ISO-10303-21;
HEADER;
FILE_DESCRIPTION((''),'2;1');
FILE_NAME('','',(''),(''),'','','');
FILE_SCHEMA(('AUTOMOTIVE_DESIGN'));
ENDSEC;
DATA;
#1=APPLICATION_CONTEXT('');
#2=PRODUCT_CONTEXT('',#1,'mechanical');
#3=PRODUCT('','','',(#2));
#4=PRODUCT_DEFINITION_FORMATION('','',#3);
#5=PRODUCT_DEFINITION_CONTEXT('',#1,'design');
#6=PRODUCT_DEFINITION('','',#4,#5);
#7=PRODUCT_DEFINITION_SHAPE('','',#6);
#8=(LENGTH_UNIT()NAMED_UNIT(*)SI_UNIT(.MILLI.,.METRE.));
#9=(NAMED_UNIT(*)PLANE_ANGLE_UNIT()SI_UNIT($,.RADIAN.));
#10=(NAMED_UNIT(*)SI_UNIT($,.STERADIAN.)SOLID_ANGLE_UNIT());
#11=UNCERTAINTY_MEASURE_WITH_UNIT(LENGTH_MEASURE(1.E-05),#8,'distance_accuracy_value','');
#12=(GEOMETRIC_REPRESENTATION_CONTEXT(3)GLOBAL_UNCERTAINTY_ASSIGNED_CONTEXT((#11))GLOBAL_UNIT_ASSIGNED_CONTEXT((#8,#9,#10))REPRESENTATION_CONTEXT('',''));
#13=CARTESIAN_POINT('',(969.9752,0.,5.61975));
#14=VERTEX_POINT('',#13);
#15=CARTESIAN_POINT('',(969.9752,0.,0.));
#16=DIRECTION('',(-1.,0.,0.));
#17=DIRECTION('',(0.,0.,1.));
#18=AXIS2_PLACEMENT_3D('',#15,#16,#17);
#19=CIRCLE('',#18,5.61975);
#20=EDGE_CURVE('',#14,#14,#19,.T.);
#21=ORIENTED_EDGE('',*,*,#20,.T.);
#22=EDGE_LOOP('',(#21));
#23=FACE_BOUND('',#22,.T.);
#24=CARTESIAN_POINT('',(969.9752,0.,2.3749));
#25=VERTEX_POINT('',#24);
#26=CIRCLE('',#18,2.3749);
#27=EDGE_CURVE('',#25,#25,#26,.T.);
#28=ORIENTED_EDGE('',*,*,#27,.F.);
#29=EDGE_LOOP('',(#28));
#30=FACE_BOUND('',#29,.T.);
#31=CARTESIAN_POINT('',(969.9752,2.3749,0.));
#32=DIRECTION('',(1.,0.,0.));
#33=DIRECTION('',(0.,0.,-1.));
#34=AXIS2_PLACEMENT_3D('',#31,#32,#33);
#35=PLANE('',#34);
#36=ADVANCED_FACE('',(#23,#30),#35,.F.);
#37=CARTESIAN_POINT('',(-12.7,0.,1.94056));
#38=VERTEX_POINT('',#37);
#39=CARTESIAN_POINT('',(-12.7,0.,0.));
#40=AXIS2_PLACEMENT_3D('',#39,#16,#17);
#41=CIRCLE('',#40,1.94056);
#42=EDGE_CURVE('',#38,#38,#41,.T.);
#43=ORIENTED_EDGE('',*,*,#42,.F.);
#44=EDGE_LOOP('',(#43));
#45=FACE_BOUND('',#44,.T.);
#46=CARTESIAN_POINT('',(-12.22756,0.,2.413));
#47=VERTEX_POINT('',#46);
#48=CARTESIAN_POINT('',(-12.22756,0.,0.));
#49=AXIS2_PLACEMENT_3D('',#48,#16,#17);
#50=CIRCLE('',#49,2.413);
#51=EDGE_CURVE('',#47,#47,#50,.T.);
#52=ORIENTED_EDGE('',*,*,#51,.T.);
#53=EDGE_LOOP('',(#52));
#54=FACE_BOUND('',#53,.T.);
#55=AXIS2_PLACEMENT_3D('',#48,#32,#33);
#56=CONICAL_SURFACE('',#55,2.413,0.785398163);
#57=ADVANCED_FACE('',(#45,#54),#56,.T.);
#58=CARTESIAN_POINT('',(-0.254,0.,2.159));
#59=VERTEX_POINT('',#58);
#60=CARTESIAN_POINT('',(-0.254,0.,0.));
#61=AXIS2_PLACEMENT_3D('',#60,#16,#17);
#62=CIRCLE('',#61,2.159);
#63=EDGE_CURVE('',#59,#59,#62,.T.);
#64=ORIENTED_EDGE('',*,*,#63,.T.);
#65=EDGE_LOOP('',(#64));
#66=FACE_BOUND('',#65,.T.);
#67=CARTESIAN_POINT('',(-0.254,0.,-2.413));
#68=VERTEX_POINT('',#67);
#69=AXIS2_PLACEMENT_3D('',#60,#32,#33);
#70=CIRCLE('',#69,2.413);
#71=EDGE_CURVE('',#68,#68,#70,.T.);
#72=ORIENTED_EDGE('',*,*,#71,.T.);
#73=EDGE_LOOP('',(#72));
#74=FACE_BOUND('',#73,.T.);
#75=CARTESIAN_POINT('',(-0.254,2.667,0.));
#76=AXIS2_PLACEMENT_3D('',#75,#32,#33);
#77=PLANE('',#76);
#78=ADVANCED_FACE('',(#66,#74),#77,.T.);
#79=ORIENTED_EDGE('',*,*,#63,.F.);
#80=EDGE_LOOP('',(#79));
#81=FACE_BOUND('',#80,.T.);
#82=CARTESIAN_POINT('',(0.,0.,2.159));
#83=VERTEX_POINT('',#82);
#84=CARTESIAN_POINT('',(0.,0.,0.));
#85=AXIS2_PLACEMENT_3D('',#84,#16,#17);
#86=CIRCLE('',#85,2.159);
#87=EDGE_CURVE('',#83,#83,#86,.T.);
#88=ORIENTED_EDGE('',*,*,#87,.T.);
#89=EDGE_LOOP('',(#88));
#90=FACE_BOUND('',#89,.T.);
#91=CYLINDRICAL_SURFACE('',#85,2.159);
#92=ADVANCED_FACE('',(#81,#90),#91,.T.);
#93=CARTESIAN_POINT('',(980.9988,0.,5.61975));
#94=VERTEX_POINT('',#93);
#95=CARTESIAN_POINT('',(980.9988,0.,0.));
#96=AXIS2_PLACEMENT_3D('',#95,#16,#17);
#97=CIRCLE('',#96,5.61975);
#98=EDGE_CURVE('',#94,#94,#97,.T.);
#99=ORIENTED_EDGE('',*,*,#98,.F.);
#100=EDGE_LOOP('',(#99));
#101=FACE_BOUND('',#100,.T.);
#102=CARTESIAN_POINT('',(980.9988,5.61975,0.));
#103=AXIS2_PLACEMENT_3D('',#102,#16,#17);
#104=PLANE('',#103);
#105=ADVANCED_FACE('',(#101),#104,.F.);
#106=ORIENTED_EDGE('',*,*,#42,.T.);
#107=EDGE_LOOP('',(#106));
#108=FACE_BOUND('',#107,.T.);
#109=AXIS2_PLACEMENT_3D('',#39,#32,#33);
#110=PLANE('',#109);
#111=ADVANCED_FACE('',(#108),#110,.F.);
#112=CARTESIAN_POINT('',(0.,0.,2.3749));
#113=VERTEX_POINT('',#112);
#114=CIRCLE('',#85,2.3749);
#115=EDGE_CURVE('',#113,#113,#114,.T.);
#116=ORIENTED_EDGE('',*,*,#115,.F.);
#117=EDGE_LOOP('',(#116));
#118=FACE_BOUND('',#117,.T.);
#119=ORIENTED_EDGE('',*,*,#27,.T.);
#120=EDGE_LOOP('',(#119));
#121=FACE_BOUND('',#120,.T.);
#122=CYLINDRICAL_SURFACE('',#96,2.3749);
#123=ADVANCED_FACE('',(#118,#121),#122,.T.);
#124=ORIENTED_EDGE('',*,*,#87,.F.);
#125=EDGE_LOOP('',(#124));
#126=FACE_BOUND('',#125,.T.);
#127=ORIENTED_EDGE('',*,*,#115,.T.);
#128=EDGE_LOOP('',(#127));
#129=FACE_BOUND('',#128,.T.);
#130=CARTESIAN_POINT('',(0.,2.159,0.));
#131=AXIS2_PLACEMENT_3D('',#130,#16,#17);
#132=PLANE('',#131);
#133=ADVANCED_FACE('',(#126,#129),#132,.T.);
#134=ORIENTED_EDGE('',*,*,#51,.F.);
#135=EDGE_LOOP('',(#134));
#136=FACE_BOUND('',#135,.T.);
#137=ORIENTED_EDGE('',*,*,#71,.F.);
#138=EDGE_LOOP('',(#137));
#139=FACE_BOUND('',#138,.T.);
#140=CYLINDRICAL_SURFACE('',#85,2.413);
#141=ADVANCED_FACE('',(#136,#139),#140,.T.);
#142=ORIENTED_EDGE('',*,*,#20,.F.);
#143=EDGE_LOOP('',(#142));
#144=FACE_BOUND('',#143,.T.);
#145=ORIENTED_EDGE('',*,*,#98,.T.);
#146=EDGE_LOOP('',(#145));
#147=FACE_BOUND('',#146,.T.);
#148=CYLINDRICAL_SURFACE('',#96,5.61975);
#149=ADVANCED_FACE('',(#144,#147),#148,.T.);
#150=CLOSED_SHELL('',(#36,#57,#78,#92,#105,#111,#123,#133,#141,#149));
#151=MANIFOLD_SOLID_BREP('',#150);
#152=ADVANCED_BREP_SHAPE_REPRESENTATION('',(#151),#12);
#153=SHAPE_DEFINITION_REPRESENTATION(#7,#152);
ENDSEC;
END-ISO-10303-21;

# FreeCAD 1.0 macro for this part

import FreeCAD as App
import Part
import Sketcher
Q = App.Units.Quantity


def add_polygon(sketch, points):
    """Adds a closed chain of lines whose ends are joined by coincident constraints."""
    first, n = sketch.GeometryCount, len(points)
    for a, b in zip(points, points[1:] + points[:1]):
        sketch.addGeometry(Part.LineSegment(App.Vector(*a, 0), App.Vector(*b, 0)), False)
    for i in range(n):
        sketch.addConstraint(Sketcher.Constraint("Coincident", first + i, 2, first + (i + 1) % n, 1))

doc = App.newDocument("Part")
params = doc.addObject("Spreadsheet::Sheet", "Params")
for row, (alias, value) in enumerate([
    ("sketch1_width", "38.622 in"),
    ("sketch1_width2", "0.434 in"),
    ("revolution_angle", "360 deg"),
    ("sketch2_width", "0.5 in"),
    ("sketch2_height", "0.095 in"),
    ("revolution2_angle", "360 deg"),
    ("sketch3_width", "0.01 in"),
    ("sketch3_height", "0.02 in"),
    ("groove_angle", "360 deg"),
], start=1):
    params.set(f"A{row}", alias)
    params.set(f"B{row}", "=" + value)
    params.setAlias(f"B{row}", alias)

body = doc.addObject("PartDesign::Body", "Body")

# Sketch on XY plane
sketch1 = body.newObject("Sketcher::SketchObject", "Sketch")
sketch1.AttachmentSupport = (doc.getObject("XY_Plane"), [""])
sketch1.MapMode = "FlatFace"
add_polygon(sketch1, [(0, 2.4), (0, 0), (981, 0), (981, 5.6), (970, 5.6), (970, 2.4)])  # lines 0-5
sketch1.addConstraint(Sketcher.Constraint("Vertical", 0))
sketch1.addConstraint(Sketcher.Constraint("Horizontal", 1))
sketch1.addConstraint(Sketcher.Constraint("Vertical", 2))
sketch1.addConstraint(Sketcher.Constraint("Horizontal", 3))
sketch1.addConstraint(Sketcher.Constraint("Vertical", 4))
sketch1.addConstraint(Sketcher.Constraint("Horizontal", 5))
sketch1.addConstraint(Sketcher.Constraint("Coincident", 0, 2, -1, 1))
sketch1.addConstraint(Sketcher.Constraint("DistanceX", 1, 1, 1, 2, Q("38.622 in")))
sketch1.addConstraint(Sketcher.Constraint("DistanceX", 3, 2, 3, 1, Q("0.434 in")))
sketch1.addConstraint(Sketcher.Constraint("DistanceY", 0, 2, 0, 1, Q("0.0935 in")))
sketch1.addConstraint(Sketcher.Constraint("DistanceY", 2, 1, 2, 2, 5.61975))
sketch1.setExpression("Constraints[13]", "Params.sketch1_width")
sketch1.setExpression("Constraints[14]", "Params.sketch1_width2")
revolution = body.newObject("PartDesign::Revolution", "Revolution")
revolution.Profile = sketch1
revolution.ReferenceAxis = (sketch1, ["H_Axis"])
revolution.setExpression("Angle", "Params.revolution_angle")

# Sketch on XY plane
sketch2 = body.newObject("Sketcher::SketchObject", "Sketch001")
sketch2.AttachmentSupport = (doc.getObject("XY_Plane"), [""])
sketch2.MapMode = "FlatFace"
add_polygon(sketch2, [(-12.7, 1.9), (-12.7, 0), (0, 0), (0, 2.4), (-12.2, 2.4)])  # lines 0-4
sketch2.addConstraint(Sketcher.Constraint("Vertical", 0))
sketch2.addConstraint(Sketcher.Constraint("Horizontal", 1))
sketch2.addConstraint(Sketcher.Constraint("Vertical", 2))
sketch2.addConstraint(Sketcher.Constraint("Horizontal", 3))
sketch2.addConstraint(Sketcher.Constraint("Coincident", 1, 2, -1, 1))
sketch2.addConstraint(Sketcher.Constraint("DistanceX", 1, 1, 1, 2, Q("0.5 in")))
sketch2.addConstraint(Sketcher.Constraint("Angle", 4, Q("-135 deg")))
sketch2.addConstraint(Sketcher.Constraint("DistanceY", 2, 1, 2, 2, Q("0.095 in")))
sketch2.addConstraint(Sketcher.Constraint("DistanceX", 3, 2, 3, 1, Q("0.4814 in")))
sketch2.setExpression("Constraints[10]", "Params.sketch2_width")
sketch2.setExpression("Constraints[12]", "Params.sketch2_height")
revolution2 = body.newObject("PartDesign::Revolution", "Revolution001")
revolution2.Profile = sketch2
revolution2.ReferenceAxis = (sketch2, ["H_Axis"])
revolution2.setExpression("Angle", "Params.revolution2_angle")

# Sketch on XY plane
sketch3 = body.newObject("Sketcher::SketchObject", "Sketch002")
sketch3.AttachmentSupport = (doc.getObject("XY_Plane"), [""])
sketch3.MapMode = "FlatFace"
add_polygon(sketch3, [(-0.25, 2.67), (-0.25, 2.16), (0, 2.16), (0, 2.67)])  # lines 0-3
sketch3.addConstraint(Sketcher.Constraint("Vertical", 0))
sketch3.addConstraint(Sketcher.Constraint("Horizontal", 1))
sketch3.addConstraint(Sketcher.Constraint("Vertical", 2))
sketch3.addConstraint(Sketcher.Constraint("Horizontal", 3))
sketch3.addConstraint(Sketcher.Constraint("PointOnObject", 1, 2, -2))
sketch3.addConstraint(Sketcher.Constraint("DistanceX", 1, 1, 1, 2, Q("0.01 in")))
sketch3.addConstraint(Sketcher.Constraint("DistanceY", 0, 2, 0, 1, Q("0.02 in")))
sketch3.addConstraint(Sketcher.Constraint("DistanceY", -1, 1, 0, 2, Q("0.085 in")))
sketch3.setExpression("Constraints[9]", "Params.sketch3_width")
sketch3.setExpression("Constraints[10]", "Params.sketch3_height")
groove = body.newObject("PartDesign::Groove", "Groove")
groove.Profile = sketch3
groove.ReferenceAxis = (sketch3, ["H_Axis"])
groove.setExpression("Angle", "Params.groove_angle")

doc.recompute()
